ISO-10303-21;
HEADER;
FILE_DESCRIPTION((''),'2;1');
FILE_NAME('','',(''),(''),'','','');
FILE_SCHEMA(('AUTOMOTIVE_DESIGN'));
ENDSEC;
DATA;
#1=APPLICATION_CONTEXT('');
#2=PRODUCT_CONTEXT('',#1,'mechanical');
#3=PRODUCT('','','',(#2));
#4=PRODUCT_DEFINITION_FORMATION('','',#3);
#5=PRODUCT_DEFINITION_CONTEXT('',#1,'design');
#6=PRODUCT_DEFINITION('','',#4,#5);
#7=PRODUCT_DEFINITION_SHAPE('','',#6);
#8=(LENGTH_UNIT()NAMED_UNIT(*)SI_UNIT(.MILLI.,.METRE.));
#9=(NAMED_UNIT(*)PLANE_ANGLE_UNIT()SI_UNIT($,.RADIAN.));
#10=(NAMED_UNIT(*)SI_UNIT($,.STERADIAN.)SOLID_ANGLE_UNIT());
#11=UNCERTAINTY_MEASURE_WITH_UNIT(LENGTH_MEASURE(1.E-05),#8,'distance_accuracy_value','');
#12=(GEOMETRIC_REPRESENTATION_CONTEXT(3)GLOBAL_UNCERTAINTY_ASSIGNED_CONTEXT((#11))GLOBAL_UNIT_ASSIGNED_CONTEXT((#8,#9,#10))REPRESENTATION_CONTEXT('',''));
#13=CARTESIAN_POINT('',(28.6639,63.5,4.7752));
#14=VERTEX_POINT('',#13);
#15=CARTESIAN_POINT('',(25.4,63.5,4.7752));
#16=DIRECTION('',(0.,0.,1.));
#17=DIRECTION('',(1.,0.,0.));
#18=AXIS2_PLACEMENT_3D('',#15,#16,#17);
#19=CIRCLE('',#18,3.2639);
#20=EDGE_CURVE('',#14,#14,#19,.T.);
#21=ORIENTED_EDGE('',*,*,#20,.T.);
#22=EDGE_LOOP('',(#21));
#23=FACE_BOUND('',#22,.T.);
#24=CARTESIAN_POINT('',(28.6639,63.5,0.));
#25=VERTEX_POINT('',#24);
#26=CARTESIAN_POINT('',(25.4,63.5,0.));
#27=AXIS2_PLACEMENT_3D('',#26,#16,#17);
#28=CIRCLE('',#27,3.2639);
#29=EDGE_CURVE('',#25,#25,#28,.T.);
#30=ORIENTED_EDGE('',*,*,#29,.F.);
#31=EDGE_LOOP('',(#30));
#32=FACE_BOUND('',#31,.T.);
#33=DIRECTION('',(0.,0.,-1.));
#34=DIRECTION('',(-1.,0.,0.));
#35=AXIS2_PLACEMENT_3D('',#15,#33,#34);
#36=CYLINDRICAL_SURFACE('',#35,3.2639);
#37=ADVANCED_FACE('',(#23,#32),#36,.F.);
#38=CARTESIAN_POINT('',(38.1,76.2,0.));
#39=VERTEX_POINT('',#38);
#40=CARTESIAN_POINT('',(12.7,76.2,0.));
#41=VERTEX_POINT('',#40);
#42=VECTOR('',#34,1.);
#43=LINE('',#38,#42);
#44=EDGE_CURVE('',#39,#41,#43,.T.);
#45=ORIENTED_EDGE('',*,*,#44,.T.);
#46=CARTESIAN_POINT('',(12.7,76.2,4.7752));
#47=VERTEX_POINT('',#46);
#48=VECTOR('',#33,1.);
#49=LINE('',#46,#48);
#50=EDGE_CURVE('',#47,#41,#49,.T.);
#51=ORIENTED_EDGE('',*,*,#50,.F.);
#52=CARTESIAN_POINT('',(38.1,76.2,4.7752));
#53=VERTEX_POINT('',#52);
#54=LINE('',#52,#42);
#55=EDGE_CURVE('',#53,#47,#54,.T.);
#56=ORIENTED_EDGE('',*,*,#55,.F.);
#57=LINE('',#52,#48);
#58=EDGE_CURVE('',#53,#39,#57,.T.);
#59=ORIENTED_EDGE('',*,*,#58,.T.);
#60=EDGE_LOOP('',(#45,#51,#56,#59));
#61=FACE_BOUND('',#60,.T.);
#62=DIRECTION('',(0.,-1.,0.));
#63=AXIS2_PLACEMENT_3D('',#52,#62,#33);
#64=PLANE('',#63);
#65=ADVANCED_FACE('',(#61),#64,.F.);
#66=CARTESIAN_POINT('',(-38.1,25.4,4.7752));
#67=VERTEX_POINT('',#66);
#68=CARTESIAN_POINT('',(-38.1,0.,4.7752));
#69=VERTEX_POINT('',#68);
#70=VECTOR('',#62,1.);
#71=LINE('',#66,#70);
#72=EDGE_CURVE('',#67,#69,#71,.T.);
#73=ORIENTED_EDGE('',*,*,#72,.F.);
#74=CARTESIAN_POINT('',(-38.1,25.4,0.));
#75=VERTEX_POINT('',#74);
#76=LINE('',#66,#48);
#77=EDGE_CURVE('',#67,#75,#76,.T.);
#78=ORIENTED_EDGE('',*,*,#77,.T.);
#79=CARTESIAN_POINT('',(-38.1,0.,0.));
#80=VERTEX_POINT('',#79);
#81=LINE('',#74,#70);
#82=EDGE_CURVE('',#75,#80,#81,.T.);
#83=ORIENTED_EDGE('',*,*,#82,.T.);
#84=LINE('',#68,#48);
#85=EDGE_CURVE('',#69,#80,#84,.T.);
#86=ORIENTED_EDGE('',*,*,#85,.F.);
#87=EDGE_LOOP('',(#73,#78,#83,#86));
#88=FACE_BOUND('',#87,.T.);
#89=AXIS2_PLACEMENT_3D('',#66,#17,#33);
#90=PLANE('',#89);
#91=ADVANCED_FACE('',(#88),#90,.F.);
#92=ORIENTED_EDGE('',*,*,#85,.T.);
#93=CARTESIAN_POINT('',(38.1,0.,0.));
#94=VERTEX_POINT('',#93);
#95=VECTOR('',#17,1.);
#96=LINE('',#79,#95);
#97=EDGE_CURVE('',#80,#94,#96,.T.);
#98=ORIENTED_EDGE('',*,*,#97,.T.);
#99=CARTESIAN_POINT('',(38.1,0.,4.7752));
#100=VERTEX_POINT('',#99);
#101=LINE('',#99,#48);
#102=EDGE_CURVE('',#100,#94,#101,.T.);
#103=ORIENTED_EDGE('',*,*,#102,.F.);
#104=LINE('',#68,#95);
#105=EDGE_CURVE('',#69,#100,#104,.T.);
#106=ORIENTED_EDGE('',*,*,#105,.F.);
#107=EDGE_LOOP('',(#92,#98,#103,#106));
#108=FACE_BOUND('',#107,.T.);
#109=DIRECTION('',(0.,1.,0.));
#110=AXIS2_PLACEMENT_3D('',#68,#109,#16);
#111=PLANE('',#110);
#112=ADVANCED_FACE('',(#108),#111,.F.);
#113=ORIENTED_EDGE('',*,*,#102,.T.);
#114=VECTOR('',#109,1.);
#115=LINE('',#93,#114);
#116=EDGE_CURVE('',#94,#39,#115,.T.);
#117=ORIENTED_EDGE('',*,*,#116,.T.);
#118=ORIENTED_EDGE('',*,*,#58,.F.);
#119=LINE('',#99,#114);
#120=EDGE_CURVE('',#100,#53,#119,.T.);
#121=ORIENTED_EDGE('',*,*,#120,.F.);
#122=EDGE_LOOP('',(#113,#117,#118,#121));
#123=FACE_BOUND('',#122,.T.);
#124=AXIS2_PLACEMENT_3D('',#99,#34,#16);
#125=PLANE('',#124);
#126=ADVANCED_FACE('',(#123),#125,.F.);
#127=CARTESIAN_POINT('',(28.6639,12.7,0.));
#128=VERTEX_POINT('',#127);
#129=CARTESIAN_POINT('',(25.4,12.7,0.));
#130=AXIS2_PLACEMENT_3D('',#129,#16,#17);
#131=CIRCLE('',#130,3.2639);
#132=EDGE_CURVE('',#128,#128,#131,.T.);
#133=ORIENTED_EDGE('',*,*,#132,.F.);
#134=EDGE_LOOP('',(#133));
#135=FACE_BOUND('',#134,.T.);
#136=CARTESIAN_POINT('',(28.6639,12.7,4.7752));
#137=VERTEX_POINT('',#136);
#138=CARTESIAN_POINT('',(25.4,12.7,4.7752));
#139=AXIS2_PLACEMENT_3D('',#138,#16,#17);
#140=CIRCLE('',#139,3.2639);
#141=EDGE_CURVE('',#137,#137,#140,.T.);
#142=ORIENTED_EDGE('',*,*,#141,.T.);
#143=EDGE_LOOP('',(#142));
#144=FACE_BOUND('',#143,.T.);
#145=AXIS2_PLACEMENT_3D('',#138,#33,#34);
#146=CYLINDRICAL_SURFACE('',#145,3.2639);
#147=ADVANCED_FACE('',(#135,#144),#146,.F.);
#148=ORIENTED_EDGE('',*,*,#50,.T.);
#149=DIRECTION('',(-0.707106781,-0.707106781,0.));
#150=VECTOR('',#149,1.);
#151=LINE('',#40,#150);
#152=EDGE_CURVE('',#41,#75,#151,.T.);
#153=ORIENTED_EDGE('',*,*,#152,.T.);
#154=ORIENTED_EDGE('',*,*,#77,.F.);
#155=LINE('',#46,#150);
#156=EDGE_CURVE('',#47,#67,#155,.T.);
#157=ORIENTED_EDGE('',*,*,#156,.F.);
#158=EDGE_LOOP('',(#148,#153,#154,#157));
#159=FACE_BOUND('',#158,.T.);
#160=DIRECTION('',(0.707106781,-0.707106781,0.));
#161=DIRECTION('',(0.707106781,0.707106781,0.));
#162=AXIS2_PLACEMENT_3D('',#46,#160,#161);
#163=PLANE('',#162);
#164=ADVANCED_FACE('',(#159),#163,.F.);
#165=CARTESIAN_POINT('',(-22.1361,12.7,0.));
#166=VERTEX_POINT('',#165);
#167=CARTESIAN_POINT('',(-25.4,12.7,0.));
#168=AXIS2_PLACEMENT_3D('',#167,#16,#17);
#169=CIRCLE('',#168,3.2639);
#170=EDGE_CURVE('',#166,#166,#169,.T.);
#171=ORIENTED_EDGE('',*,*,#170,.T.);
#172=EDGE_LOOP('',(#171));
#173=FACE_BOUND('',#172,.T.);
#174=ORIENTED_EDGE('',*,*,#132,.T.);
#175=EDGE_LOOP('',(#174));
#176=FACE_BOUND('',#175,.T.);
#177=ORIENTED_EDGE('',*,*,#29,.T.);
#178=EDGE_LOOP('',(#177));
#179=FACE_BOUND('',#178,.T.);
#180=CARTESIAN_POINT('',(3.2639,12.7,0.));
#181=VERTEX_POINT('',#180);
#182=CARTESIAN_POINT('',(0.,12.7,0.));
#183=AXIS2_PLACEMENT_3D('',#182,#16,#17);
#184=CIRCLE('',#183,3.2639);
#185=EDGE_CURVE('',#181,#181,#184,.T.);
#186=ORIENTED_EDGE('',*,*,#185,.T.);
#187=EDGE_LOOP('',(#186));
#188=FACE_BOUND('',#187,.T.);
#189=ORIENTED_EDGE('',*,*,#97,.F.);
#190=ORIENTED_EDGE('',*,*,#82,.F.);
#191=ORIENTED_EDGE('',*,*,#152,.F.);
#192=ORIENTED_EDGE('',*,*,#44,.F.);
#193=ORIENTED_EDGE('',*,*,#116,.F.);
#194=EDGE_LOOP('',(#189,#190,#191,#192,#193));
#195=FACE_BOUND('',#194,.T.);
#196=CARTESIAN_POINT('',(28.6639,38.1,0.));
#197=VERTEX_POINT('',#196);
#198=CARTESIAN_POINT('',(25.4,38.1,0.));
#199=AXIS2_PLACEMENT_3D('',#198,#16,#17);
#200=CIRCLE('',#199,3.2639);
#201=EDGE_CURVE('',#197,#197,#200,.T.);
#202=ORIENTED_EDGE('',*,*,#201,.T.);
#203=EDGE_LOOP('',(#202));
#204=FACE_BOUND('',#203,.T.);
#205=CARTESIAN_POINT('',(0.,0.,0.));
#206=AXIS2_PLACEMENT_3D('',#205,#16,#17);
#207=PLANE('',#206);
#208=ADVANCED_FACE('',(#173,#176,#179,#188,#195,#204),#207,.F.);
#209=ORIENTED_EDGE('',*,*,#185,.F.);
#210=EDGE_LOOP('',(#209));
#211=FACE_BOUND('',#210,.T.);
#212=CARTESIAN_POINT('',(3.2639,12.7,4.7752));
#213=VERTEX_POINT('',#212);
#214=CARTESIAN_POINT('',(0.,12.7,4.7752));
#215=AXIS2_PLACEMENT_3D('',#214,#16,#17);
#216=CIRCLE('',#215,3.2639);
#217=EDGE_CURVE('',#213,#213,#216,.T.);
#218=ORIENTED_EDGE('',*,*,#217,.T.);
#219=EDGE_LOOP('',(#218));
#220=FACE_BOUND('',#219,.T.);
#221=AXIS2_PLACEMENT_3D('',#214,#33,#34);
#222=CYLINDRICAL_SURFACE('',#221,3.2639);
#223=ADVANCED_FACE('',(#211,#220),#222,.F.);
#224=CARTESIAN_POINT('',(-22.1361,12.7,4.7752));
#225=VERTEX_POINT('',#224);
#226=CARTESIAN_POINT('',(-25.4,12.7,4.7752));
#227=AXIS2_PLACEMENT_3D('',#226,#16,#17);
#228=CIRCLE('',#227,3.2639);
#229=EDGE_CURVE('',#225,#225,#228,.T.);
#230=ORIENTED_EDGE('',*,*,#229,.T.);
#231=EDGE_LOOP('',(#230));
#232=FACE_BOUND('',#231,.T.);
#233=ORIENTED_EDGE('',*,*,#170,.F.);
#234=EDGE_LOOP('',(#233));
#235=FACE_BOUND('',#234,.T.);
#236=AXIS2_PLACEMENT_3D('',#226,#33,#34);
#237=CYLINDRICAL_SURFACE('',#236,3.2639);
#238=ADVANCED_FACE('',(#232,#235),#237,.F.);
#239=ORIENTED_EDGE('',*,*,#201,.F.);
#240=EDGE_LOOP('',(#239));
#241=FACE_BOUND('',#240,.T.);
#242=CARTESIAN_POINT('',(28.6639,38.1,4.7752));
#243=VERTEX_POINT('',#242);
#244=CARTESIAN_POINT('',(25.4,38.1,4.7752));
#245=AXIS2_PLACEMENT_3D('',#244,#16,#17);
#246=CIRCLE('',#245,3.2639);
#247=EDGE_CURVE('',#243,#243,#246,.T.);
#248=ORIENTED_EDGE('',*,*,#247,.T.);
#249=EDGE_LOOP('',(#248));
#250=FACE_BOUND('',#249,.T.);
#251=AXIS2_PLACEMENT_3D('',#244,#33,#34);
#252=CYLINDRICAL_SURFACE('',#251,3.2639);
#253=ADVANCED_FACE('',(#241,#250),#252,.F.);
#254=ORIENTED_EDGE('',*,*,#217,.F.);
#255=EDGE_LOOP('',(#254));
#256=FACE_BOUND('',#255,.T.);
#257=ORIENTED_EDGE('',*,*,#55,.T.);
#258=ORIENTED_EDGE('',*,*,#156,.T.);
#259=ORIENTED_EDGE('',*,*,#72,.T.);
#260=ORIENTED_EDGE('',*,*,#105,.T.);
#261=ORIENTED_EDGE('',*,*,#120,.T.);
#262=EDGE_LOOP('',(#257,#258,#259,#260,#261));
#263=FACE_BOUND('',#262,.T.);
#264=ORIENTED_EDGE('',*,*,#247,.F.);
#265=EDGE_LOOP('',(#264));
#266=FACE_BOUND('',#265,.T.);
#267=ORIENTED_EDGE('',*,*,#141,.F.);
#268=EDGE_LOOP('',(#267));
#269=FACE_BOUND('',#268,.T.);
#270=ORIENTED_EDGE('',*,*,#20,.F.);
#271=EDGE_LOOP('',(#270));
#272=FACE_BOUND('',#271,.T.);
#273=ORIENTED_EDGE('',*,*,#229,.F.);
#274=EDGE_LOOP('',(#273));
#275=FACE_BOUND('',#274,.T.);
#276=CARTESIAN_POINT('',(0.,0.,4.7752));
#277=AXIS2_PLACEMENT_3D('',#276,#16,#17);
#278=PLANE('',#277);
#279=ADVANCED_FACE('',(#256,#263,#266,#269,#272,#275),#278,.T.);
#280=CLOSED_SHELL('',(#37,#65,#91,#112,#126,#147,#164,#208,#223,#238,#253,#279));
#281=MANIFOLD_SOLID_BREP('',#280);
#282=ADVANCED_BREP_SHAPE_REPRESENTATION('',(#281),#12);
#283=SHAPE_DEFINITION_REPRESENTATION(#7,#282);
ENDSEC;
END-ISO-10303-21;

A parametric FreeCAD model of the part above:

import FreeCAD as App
import Part
import Sketcher
from FreeCAD import Vector
Q = App.Units.Quantity


def add_polygon(sketch, points):
    """Adds a closed chain of lines whose ends are joined by coincident constraints."""
    first, n = sketch.GeometryCount, len(points)
    for a, b in zip(points, points[1:] + points[:1]):
        sketch.addGeometry(Part.LineSegment(App.Vector(*a, 0), App.Vector(*b, 0)), False)
    for i in range(n):
        sketch.addConstraint(Sketcher.Constraint("Coincident", first + i, 2, first + (i + 1) % n, 1))

doc = App.newDocument("Part")
body = doc.addObject("PartDesign::Body", "Body")

sketch1 = body.newObject("Sketcher::SketchObject", "Sketch")
sketch1.AttachmentSupport = (doc.getObject("XY_Plane"), [""])
sketch1.MapMode = "FlatFace"
add_polygon(sketch1, [(-38.1, 0), (38.1, 0), (38.1, 76.2), (12.7, 76.2), (-38.1, 25.4)])
sketch1.addGeometry(Part.Circle(Vector(-25.4, 12.7, 0), Vector(0, 0, 1), 3.2639), False)
sketch1.addGeometry(Part.Circle(Vector(0, 12.7, 0), Vector(0, 0, 1), 3.2639), False)
sketch1.addGeometry(Part.Circle(Vector(25.4, 12.7, 0), Vector(0, 0, 1), 3.2639), False)
sketch1.addGeometry(Part.Circle(Vector(25.4, 38.1, 0), Vector(0, 0, 1), 3.2639), False)
sketch1.addGeometry(Part.Circle(Vector(25.4, 63.5, 0), Vector(0, 0, 1), 3.2639), False)
sketch1.addConstraint(Sketcher.Constraint("Horizontal", 0))
sketch1.addConstraint(Sketcher.Constraint("Vertical", 1))
sketch1.addConstraint(Sketcher.Constraint("Horizontal", 2))
sketch1.addConstraint(Sketcher.Constraint("Vertical", 4))
sketch1.addConstraint(Sketcher.Constraint("Equal", 5, 6))
sketch1.addConstraint(Sketcher.Constraint("Equal", 6, 7))
sketch1.addConstraint(Sketcher.Constraint("Equal", 7, 8))
sketch1.addConstraint(Sketcher.Constraint("Equal", 8, 9))
sketch1.addConstraint(Sketcher.Constraint("Symmetric", 0, 2, 4, 2, -1, 1))
sketch1.addConstraint(Sketcher.Constraint("Symmetric", 5, 3, 7, 3, -2))
sketch1.addConstraint(Sketcher.Constraint("PointOnObject", 6, 3, -2))
sketch1.addConstraint(Sketcher.Constraint("Horizontal", 5, 3, 6, 3))
sketch1.addConstraint(Sketcher.Constraint("Vertical", 7, 3, 8, 3))
sketch1.addConstraint(Sketcher.Constraint("Vertical", 8, 3, 9, 3))
sketch1.addConstraint(Sketcher.Constraint("Equal", 0, 1))
sketch1.addConstraint(Sketcher.Constraint("Equal", 2, 4))
sketch1.addConstraint(Sketcher.Constraint("DistanceX", 0, 1, 0, 2, Q("3 in")))
sketch1.addConstraint(Sketcher.Constraint("DistanceX", 2, 2, 2, 1, Q("1 in")))
sketch1.addConstraint(Sketcher.Constraint("Diameter", 5, Q("0.257 in")))
sketch1.addConstraint(Sketcher.Constraint("DistanceX", 5, 3, -1, 1, Q("1 in")))
sketch1.addConstraint(Sketcher.Constraint("DistanceY", 7, 3, 8, 3, Q("1 in")))
sketch1.addConstraint(Sketcher.Constraint("DistanceY", 8, 3, 9, 3, Q("1 in")))
sketch1.addConstraint(Sketcher.Constraint("DistanceY", -1, 1, 5, 3, Q("0.5 in")))
pad1 = body.newObject("PartDesign::Pad", "Pad")
pad1.Profile = sketch1
pad1.Length = Q("0.188 in")

doc.recompute()
